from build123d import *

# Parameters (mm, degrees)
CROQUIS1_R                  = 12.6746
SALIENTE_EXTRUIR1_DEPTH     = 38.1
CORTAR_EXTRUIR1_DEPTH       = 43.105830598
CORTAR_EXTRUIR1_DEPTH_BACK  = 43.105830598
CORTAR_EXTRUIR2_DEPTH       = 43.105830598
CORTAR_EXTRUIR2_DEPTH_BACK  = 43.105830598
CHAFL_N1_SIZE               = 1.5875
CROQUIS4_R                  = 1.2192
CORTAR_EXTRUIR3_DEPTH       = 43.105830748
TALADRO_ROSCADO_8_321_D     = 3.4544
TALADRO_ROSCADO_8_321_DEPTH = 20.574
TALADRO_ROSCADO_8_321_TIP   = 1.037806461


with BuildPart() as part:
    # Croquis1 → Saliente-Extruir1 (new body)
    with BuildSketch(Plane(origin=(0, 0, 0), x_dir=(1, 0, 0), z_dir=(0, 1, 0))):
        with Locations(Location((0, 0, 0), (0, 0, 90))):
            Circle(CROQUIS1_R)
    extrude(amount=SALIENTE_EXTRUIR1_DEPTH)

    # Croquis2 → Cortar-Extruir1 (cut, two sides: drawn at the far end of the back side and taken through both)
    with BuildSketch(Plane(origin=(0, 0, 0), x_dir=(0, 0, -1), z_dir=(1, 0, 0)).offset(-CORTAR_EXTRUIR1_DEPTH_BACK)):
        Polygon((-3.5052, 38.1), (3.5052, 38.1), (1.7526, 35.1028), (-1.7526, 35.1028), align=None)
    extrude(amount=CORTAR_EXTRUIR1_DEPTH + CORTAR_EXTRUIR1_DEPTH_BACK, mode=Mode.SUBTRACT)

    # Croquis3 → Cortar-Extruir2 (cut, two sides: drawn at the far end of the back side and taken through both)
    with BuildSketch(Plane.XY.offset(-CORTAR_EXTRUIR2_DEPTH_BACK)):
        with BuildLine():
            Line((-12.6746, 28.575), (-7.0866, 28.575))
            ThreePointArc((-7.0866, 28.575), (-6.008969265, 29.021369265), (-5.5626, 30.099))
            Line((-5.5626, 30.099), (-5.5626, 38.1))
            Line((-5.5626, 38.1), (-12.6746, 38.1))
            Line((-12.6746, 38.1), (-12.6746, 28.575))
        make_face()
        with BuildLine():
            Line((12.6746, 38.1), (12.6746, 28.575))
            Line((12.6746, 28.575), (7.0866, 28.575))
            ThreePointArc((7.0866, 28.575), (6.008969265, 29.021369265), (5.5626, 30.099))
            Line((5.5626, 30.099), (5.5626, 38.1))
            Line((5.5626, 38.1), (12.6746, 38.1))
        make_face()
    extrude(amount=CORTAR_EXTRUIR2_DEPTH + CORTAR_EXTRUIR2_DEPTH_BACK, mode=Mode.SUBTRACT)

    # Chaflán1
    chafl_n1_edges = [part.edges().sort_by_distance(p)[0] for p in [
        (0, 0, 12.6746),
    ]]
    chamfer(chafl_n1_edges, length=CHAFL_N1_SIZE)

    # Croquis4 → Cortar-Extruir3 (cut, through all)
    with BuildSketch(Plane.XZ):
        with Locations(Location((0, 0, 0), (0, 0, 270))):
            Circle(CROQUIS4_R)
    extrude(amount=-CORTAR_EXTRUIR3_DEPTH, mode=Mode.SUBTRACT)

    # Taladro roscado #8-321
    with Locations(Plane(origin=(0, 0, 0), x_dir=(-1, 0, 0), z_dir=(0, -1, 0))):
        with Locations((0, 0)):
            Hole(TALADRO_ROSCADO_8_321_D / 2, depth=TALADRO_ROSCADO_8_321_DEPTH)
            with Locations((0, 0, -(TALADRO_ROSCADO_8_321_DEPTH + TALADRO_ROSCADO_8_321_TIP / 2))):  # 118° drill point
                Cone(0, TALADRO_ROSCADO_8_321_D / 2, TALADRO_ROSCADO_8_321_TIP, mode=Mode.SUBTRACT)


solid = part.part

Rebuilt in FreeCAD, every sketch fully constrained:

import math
import FreeCAD as App
import Part
import Sketcher
from FreeCAD import Vector
Q = App.Units.Quantity


def edges_at(feature, points):
    """Names of the edges that pass closest to the given points."""
    edges = feature.Shape.Edges
    near = lambda p: min(range(len(edges)), key=lambda i: edges[i].distToShape(Part.Vertex(*p))[0])
    return sorted({f"Edge{near(p) + 1}" for p in points})


def add_polygon(sketch, points):
    """Adds a closed chain of lines whose ends are joined by coincident constraints."""
    first, n = sketch.GeometryCount, len(points)
    for a, b in zip(points, points[1:] + points[:1]):
        sketch.addGeometry(Part.LineSegment(App.Vector(*a, 0), App.Vector(*b, 0)), False)
    for i in range(n):
        sketch.addConstraint(Sketcher.Constraint("Coincident", first + i, 2, first + (i + 1) % n, 1))

doc = App.newDocument("Part")
body = doc.addObject("PartDesign::Body", "Body")

# Sketch on XZ plane
sketch1 = body.newObject("Sketcher::SketchObject", "Sketch")
sketch1.AttachmentSupport = (doc.getObject("XZ_Plane"), [""])
sketch1.MapMode = "FlatFace"
sketch1.addGeometry(Part.Circle(Vector(0, 0, 0), Vector(0, 0, 1), 13), False)
sketch1.addConstraint([
    Sketcher.Constraint("Coincident", 0, 3, -1, 1),
    Sketcher.Constraint("Diameter", 0, Q("0.998 in")),
])
pad1 = body.newObject("PartDesign::Pad", "Pad")
pad1.Profile = sketch1
pad1.Length = Q("1.5 in")
pad1.Reversed = True

# Sketch on YZ plane
sketch2 = body.newObject("Sketcher::SketchObject", "Sketch001")
sketch2.AttachmentSupport = (doc.getObject("YZ_Plane"), [""])
sketch2.MapMode = "FlatFace"
add_polygon(sketch2, [(38.1, -3.5), (38.1, 3.5), (35.1, 1.8), (35.1, -1.8)])  # lines 0-3
sketch2.addConstraint([
    Sketcher.Constraint("Vertical", 0),
    Sketcher.Constraint("Vertical", 2),
    Sketcher.Constraint("Equal", 1, 3),
    Sketcher.Constraint("DistanceX", -1, 1, 0, 2, Q("1.5 in")),
    Sketcher.Constraint("DistanceY", 0, 1, 0, 2, Q("0.276 in")),
    Sketcher.Constraint("DistanceY", 2, 2, 2, 1, Q("0.138 in")),
    Sketcher.Constraint("DistanceY", -1, 1, 0, 2, Q("0.138 in")),
    Sketcher.Constraint("DistanceX", -1, 1, 1, 2, Q("1.382 in")),
])
pocket1 = body.newObject("PartDesign::Pocket", "Pocket")
pocket1.Profile = sketch2
pocket1.Type = "ThroughAll"
pocket1.Midplane = True

# Sketch on XY plane
sketch3 = body.newObject("Sketcher::SketchObject", "Sketch002")
sketch3.AttachmentSupport = (doc.getObject("XY_Plane"), [""])
sketch3.MapMode = "FlatFace"
sketch3.addGeometry([
    Part.LineSegment(Vector(-12.7, 28.6, 0), Vector(-7.1, 28.6, 0)),  # 0
    Part.ArcOfCircle(Part.Circle(Vector(-7.1, 30.1, 0), Vector(0, 0, 1), 1.5), math.radians(-90), math.radians(0)),  # 1
    Part.LineSegment(Vector(-5.6, 30.1, 0), Vector(-5.6, 38.1, 0)),  # 2
    Part.LineSegment(Vector(-5.6, 38.1, 0), Vector(-12.7, 38.1, 0)),  # 3
    Part.LineSegment(Vector(-12.7, 38.1, 0), Vector(-12.7, 28.6, 0)),  # 4
    Part.LineSegment(Vector(12.7, 28.6, 0), Vector(12.7, 38.1, 0)),  # 5
    Part.LineSegment(Vector(12.7, 38.1, 0), Vector(5.6, 38.1, 0)),  # 6
    Part.LineSegment(Vector(5.6, 38.1, 0), Vector(5.6, 30.1, 0)),  # 7
    Part.ArcOfCircle(Part.Circle(Vector(7.1, 30.1, 0), Vector(0, 0, 1), 1.5), math.radians(180), math.radians(270)),  # 8
    Part.LineSegment(Vector(7.1, 28.6, 0), Vector(12.7, 28.6, 0)),  # 9
], False)
sketch3.addConstraint([
    Sketcher.Constraint("Tangent", 0, 2, 1, 1),
    Sketcher.Constraint("Tangent", 1, 2, 2, 1),
    Sketcher.Constraint("Coincident", 2, 2, 3, 1),
    Sketcher.Constraint("Coincident", 3, 2, 4, 1),
    Sketcher.Constraint("Coincident", 4, 2, 0, 1),
    Sketcher.Constraint("Coincident", 5, 2, 6, 1),
    Sketcher.Constraint("Coincident", 6, 2, 7, 1),
    Sketcher.Constraint("Tangent", 7, 2, 8, 1),
    Sketcher.Constraint("Tangent", 8, 2, 9, 1),
    Sketcher.Constraint("Coincident", 9, 2, 5, 1),
    Sketcher.Constraint("Horizontal", 0),
    Sketcher.Constraint("Vertical", 2),
    Sketcher.Constraint("Horizontal", 3),
    Sketcher.Constraint("Vertical", 4),
    Sketcher.Constraint("Vertical", 5),
    Sketcher.Constraint("Horizontal", 6),
    Sketcher.Constraint("Vertical", 7),
    Sketcher.Constraint("Horizontal", 9),
    Sketcher.Constraint("Equal", 1, 8),
    Sketcher.Constraint("Symmetric", 1, 3, 8, 3, -2),
    Sketcher.Constraint("Symmetric", 3, 2, 5, 2, -2),
    Sketcher.Constraint("Radius", 1, Q("0.06 in")),
    Sketcher.Constraint("DistanceX", 0, 1, 0, 2, Q("0.22 in")),
    Sketcher.Constraint("DistanceY", -1, 1, 2, 2, Q("1.5 in")),
    Sketcher.Constraint("DistanceY", 2, 1, 2, 2, Q("0.315 in")),
    Sketcher.Constraint("DistanceX", 1, 3, -1, 1, Q("0.279 in")),
])
pocket2 = body.newObject("PartDesign::Pocket", "Pocket001")
pocket2.Profile = sketch3
pocket2.Type = "ThroughAll"
pocket2.Midplane = True
doc.recompute()

chamfer = body.newObject("PartDesign::Chamfer", "Chamfer")
chamfer.Base = (pocket2, edges_at(pocket2, [(0, 0, 12.675)]))
chamfer.Size = Q("0.0625 in")

# Sketch on XZ plane
sketch4 = body.newObject("Sketcher::SketchObject", "Sketch003")
sketch4.AttachmentSupport = (doc.getObject("XZ_Plane"), [""])
sketch4.MapMode = "FlatFace"
sketch4.addGeometry(Part.Circle(Vector(0, 0, 0), Vector(0, 0, 1), 1.2), False)
sketch4.addConstraint([
    Sketcher.Constraint("Coincident", 0, 3, -1, 1),
    Sketcher.Constraint("Diameter", 0, Q("0.096 in")),
])
pocket3 = body.newObject("PartDesign::Pocket", "Pocket002")
pocket3.Profile = sketch4
pocket3.Type = "ThroughAll"

# Sketch on XZ plane
sketch5 = body.newObject("Sketcher::SketchObject", "Sketch004")
sketch5.AttachmentSupport = (doc.getObject("XZ_Plane"), [""])
sketch5.MapMode = "FlatFace"
sketch5.addGeometry(Part.Circle(Vector(0, 0, 0), Vector(0, 0, 1), 1.7), False)
sketch5.addConstraint([
    Sketcher.Constraint("Coincident", 0, 3, -1, 1),
    Sketcher.Constraint("Diameter", 0, Q("0.136 in")),
])
doc.recompute()
hole = body.newObject("PartDesign::Hole", "Hole")
hole.Profile = sketch5
hole.ThreadType = "None"
hole.Diameter = Q("0.136 in")
hole.DepthType = "Dimension"
hole.Depth = Q("0.81 in")
hole.DrillPoint = "Angled"
hole.DrillPointAngle = 118

doc.recompute()
